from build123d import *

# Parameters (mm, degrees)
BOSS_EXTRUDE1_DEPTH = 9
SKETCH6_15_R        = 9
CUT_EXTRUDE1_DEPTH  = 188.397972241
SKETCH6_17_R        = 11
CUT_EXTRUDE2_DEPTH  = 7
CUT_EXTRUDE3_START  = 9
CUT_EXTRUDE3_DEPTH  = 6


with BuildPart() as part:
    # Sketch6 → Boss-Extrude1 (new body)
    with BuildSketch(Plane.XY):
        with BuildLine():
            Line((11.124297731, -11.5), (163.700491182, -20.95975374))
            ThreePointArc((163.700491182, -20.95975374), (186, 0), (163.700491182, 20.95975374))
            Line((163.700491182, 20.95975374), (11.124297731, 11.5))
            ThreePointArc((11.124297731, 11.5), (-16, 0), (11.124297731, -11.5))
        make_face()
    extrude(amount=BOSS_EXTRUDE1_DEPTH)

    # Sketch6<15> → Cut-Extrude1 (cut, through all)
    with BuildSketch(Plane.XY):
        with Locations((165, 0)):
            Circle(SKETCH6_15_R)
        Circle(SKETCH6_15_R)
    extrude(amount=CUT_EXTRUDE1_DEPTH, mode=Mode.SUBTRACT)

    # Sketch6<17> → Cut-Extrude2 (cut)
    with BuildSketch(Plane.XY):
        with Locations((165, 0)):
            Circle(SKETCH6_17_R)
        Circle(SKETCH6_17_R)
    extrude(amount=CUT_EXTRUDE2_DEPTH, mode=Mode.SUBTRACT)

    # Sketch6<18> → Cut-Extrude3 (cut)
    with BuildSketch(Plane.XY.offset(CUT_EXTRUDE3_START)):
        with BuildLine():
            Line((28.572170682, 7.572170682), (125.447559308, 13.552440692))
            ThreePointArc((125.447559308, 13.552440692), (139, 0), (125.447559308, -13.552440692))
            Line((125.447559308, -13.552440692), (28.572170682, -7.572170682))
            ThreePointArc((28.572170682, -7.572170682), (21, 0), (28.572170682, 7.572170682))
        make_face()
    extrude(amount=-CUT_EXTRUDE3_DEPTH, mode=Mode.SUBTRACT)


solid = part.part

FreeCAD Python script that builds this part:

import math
import FreeCAD as App
import Part
import Sketcher
from FreeCAD import Vector

doc = App.newDocument("Part")
body = doc.addObject("PartDesign::Body", "Body")

sketch1 = body.newObject("Sketcher::SketchObject", "Sketch")
sketch1.AttachmentSupport = (doc.getObject("XY_Plane"), [""])
sketch1.MapMode = "FlatFace"
sketch1.addGeometry(Part.LineSegment(Vector(11, -12, 0), Vector(164, -21, 0)), False)
sketch1.addGeometry(Part.ArcOfCircle(Part.Circle(Vector(165, 0, 0), Vector(0, 0, 1), 21), math.radians(-94), math.radians(94)), False)
sketch1.addGeometry(Part.LineSegment(Vector(164, 21, 0), Vector(11, 12, 0)), False)
sketch1.addGeometry(Part.ArcOfCircle(Part.Circle(Vector(0, 0, 0), Vector(0, 0, 1), 16), math.radians(46), math.radians(314)), False)
sketch1.addConstraint(Sketcher.Constraint("Tangent", 0, 2, 1, 1))
sketch1.addConstraint(Sketcher.Constraint("Tangent", 1, 2, 2, 1))
sketch1.addConstraint(Sketcher.Constraint("Coincident", 2, 2, 3, 1))
sketch1.addConstraint(Sketcher.Constraint("Coincident", 3, 2, 0, 1))
sketch1.addConstraint(Sketcher.Constraint("Coincident", 3, 3, -1, 1))
sketch1.addConstraint(Sketcher.Constraint("Symmetric", 0, 2, 1, 2, -1))
sketch1.addConstraint(Sketcher.Constraint("Radius", 1, 21.0))
sketch1.addConstraint(Sketcher.Constraint("Radius", 3, 16.0))
sketch1.addConstraint(Sketcher.Constraint("DistanceX", -1, 1, 1, 3, 165.0))
sketch1.addConstraint(Sketcher.Constraint("DistanceY", 3, 2, 2, 2, 23.0))
pad1 = body.newObject("PartDesign::Pad", "Pad")
pad1.Profile = sketch1
pad1.Length = 9

sketch2 = body.newObject("Sketcher::SketchObject", "Sketch001")
sketch2.AttachmentSupport = (doc.getObject("XY_Plane"), [""])
sketch2.MapMode = "FlatFace"
sketch2.addGeometry(Part.Circle(Vector(165, 0, 0), Vector(0, 0, 1), 9), False)
sketch2.addGeometry(Part.Circle(Vector(0, 0, 0), Vector(0, 0, 1), 9), False)
sketch2.addConstraint(Sketcher.Constraint("Coincident", 1, 3, -1, 1))
sketch2.addConstraint(Sketcher.Constraint("Equal", 0, 1))
sketch2.addConstraint(Sketcher.Constraint("PointOnObject", 0, 3, -1))
sketch2.addConstraint(Sketcher.Constraint("Diameter", 0, 18.0))
sketch2.addConstraint(Sketcher.Constraint("DistanceX", -1, 1, 0, 3, 165.0))
pocket1 = body.newObject("PartDesign::Pocket", "Pocket")
pocket1.Profile = sketch2
pocket1.Type = "ThroughAll"
pocket1.Reversed = True

sketch3 = body.newObject("Sketcher::SketchObject", "Sketch002")
sketch3.AttachmentSupport = (doc.getObject("XY_Plane"), [""])
sketch3.MapMode = "FlatFace"
sketch3.addGeometry(Part.Circle(Vector(165, 0, 0), Vector(0, 0, 1), 11), False)
sketch3.addGeometry(Part.Circle(Vector(0, 0, 0), Vector(0, 0, 1), 11), False)
sketch3.addConstraint(Sketcher.Constraint("Coincident", 1, 3, -1, 1))
sketch3.addConstraint(Sketcher.Constraint("Equal", 0, 1))
sketch3.addConstraint(Sketcher.Constraint("PointOnObject", 0, 3, -1))
sketch3.addConstraint(Sketcher.Constraint("Diameter", 0, 22.0))
sketch3.addConstraint(Sketcher.Constraint("DistanceX", -1, 1, 0, 3, 165.0))
pocket2 = body.newObject("PartDesign::Pocket", "Pocket001")
pocket2.Profile = sketch3
pocket2.Length = 7
pocket2.Reversed = True

sketch4 = body.newObject("Sketcher::SketchObject", "Sketch003")
sketch4.AttachmentSupport = (doc.getObject("XY_Plane"), [""])
sketch4.MapMode = "FlatFace"
sketch4.AttachmentOffset = App.Placement(Vector(0, 0, 9), App.Rotation())
sketch4.addGeometry(Part.LineSegment(Vector(125, 14, 0), Vector(29, 8, 0)), False)
sketch4.addGeometry(Part.ArcOfCircle(Part.Circle(Vector(29, 0, 0), Vector(0, 0, 1), 8), math.radians(90), math.radians(270)), False)
sketch4.addGeometry(Part.LineSegment(Vector(29, -8, 0), Vector(125, -14, 0)), False)
sketch4.addGeometry(Part.ArcOfCircle(Part.Circle(Vector(125, 0, 0), Vector(0, 0, 1), 14), math.radians(-90), math.radians(90)), False)
sketch4.addConstraint(Sketcher.Constraint("Coincident", 0, 2, 1, 1))
sketch4.addConstraint(Sketcher.Constraint("Coincident", 1, 2, 2, 1))
sketch4.addConstraint(Sketcher.Constraint("Coincident", 2, 2, 3, 1))
sketch4.addConstraint(Sketcher.Constraint("Coincident", 3, 2, 0, 1))
sketch4.addConstraint(Sketcher.Constraint("Symmetric", 0, 2, 1, 2, -1))
sketch4.addConstraint(Sketcher.Constraint("Symmetric", 2, 2, 3, 2, -1))
sketch4.addConstraint(Sketcher.Constraint("Vertical", 1, 3, 0, 2))
sketch4.addConstraint(Sketcher.Constraint("Vertical", 3, 3, 2, 2))
sketch4.addConstraint(Sketcher.Constraint("Radius", 1, 7.572171))
sketch4.addConstraint(Sketcher.Constraint("Radius", 3, 13.552441))
sketch4.addConstraint(Sketcher.Constraint("Distance", 0, 97.059799))
sketch4.addConstraint(Sketcher.Constraint("DistanceX", -1, 1, 1, 3, 28.572171))
pocket3 = body.newObject("PartDesign::Pocket", "Pocket002")
pocket3.Profile = sketch4
pocket3.Length = 6

doc.recompute()
